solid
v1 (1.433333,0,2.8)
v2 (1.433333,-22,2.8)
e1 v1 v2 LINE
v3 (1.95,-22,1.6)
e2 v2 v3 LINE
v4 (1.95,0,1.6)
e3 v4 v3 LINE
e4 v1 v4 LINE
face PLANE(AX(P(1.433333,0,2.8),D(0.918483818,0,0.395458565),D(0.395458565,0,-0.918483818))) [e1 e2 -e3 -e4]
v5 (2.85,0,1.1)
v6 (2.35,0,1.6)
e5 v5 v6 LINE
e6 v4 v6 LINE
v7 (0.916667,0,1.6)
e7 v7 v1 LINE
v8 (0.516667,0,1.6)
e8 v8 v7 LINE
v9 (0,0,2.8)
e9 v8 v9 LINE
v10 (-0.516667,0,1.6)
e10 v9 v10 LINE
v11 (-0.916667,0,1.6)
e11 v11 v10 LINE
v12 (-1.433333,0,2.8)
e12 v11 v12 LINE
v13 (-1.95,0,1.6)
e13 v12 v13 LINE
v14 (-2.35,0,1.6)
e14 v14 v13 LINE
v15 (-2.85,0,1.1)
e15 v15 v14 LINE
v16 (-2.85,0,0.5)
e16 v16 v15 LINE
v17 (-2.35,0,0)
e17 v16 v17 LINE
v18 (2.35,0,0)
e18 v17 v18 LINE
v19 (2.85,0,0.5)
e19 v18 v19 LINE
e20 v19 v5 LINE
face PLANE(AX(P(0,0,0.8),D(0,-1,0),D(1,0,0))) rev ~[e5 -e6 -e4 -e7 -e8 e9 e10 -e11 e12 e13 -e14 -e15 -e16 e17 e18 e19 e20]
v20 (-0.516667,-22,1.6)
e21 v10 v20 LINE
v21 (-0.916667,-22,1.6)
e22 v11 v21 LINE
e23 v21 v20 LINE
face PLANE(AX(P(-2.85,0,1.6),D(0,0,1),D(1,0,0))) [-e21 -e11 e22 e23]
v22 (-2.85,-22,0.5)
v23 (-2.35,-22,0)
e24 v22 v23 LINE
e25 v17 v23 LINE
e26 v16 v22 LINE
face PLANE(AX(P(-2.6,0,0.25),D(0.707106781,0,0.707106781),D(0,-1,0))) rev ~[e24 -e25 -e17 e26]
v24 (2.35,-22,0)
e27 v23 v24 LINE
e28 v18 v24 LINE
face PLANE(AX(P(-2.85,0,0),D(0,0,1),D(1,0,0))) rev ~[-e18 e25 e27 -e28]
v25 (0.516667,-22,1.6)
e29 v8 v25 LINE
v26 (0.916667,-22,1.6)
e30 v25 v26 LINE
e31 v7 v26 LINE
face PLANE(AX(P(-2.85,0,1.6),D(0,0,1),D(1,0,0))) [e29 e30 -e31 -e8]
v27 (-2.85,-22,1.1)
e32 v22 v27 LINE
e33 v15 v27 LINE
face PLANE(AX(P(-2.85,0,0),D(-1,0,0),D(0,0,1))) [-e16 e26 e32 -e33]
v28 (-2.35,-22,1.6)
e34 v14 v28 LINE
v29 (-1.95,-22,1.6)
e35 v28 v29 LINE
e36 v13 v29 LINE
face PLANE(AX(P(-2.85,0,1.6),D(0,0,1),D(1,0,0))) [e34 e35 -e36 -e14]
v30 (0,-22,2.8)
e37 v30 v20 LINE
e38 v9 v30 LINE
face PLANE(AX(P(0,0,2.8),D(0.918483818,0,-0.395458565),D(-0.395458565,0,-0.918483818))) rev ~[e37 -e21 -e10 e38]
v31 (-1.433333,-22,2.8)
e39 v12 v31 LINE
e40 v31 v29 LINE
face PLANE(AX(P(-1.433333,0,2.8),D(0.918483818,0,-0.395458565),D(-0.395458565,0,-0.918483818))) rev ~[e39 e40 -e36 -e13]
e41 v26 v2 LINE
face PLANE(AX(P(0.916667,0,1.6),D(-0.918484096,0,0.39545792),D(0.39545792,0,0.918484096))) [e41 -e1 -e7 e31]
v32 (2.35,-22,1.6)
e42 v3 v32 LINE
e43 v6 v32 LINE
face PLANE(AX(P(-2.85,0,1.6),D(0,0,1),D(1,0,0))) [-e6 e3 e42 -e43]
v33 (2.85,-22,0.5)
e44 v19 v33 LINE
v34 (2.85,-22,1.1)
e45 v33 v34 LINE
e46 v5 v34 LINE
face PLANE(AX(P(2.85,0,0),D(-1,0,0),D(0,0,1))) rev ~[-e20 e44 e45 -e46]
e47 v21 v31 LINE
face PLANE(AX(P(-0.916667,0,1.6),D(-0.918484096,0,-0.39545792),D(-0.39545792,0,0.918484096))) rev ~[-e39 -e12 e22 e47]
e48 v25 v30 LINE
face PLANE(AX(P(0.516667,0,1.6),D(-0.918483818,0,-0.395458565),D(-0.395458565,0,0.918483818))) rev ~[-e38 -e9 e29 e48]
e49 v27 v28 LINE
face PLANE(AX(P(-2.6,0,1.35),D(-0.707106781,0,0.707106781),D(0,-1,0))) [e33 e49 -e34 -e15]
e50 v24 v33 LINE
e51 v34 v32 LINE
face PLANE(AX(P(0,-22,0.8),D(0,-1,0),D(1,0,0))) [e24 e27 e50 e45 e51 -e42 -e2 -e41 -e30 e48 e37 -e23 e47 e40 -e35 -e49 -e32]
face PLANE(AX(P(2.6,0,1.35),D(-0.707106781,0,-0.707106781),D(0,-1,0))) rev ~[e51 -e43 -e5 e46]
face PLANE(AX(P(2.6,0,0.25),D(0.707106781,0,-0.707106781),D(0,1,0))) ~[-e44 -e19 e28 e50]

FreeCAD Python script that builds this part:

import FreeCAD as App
import Part
import Sketcher
Q = App.Units.Quantity


def edges_at(feature, points):
    """Names of the edges that pass closest to the given points."""
    edges = feature.Shape.Edges
    near = lambda p: min(range(len(edges)), key=lambda i: edges[i].distToShape(Part.Vertex(*p))[0])
    return sorted({f"Edge{near(p) + 1}" for p in points})

doc = App.newDocument("Part")
body = doc.addObject("PartDesign::Body", "Body")

sketch1 = body.newObject("Sketcher::SketchObject", "Sketch")
sketch1.AttachmentSupport = (doc.getObject("XZ_Plane"), [""])
sketch1.MapMode = "FlatFace"
sketch1.addGeometry([
    Part.LineSegment(App.Vector(-2.9, 1.6, 0), App.Vector(-2.9, 0, 0)),
    Part.LineSegment(App.Vector(-2.9, 0, 0), App.Vector(2.9, 0, 0)),
    Part.LineSegment(App.Vector(2.9, 0, 0), App.Vector(2.9, 1.6, 0)),
    Part.LineSegment(App.Vector(2.9, 1.6, 0), App.Vector(-2.9, 1.6, 0)),
], False)
sketch1.addConstraint([
    Sketcher.Constraint("Coincident", 0, 2, 1, 1),
    Sketcher.Constraint("Coincident", 1, 2, 2, 1),
    Sketcher.Constraint("Coincident", 2, 2, 3, 1),
    Sketcher.Constraint("Coincident", 3, 2, 0, 1),
    Sketcher.Constraint("Vertical", 0),
    Sketcher.Constraint("Horizontal", 1),
    Sketcher.Constraint("Vertical", 2),
    Sketcher.Constraint("Horizontal", 3),
    Sketcher.Constraint("Symmetric", 0, 2, 1, 2, -1, 1),
    Sketcher.Constraint("DistanceX", 1, 1, 1, 2, Q("5.7 mm")),
    Sketcher.Constraint("DistanceY", 0, 2, 0, 1, Q("1.6 mm")),
])
pad1 = body.newObject("PartDesign::Pad", "Pad")
pad1.Profile = sketch1
pad1.Length = 22

sketch2 = body.newObject("Sketcher::SketchObject", "Sketch001")
sketch2.AttachmentSupport = (doc.getObject("XZ_Plane"), [""])
sketch2.MapMode = "FlatFace"
sketch2.addGeometry([
    Part.LineSegment(App.Vector(0.5, 1.6, 0), App.Vector(0, 2.8, 0)),
    Part.LineSegment(App.Vector(0, 2.8, 0), App.Vector(-0.5, 1.6, 0)),
    Part.LineSegment(App.Vector(-0.5, 1.6, 0), App.Vector(0.5, 1.6, 0)),
    Part.LineSegment(App.Vector(-0.9, 1.6, 0), App.Vector(-1.4, 2.8, 0)),
    Part.LineSegment(App.Vector(-1.4, 2.8, 0), App.Vector(-1.9, 1.6, 0)),
    Part.LineSegment(App.Vector(-1.9, 1.6, 0), App.Vector(-0.9, 1.6, 0)),
    Part.LineSegment(App.Vector(1.4, 2.8, 0), App.Vector(0.9, 1.6, 0)),
    Part.LineSegment(App.Vector(0.9, 1.6, 0), App.Vector(1.9, 1.6, 0)),
    Part.LineSegment(App.Vector(1.9, 1.6, 0), App.Vector(1.4, 2.8, 0)),
], False)
sketch2.addConstraint([
    Sketcher.Constraint("Coincident", 0, 2, 1, 1),
    Sketcher.Constraint("Coincident", 1, 2, 2, 1),
    Sketcher.Constraint("Coincident", 2, 2, 0, 1),
    Sketcher.Constraint("Coincident", 3, 2, 4, 1),
    Sketcher.Constraint("Coincident", 4, 2, 5, 1),
    Sketcher.Constraint("Coincident", 5, 2, 3, 1),
    Sketcher.Constraint("Coincident", 6, 2, 7, 1),
    Sketcher.Constraint("Coincident", 7, 2, 8, 1),
    Sketcher.Constraint("Coincident", 8, 2, 6, 1),
    Sketcher.Constraint("Horizontal", 2),
    Sketcher.Constraint("Horizontal", 5),
    Sketcher.Constraint("Horizontal", 7),
    Sketcher.Constraint("Symmetric", 5, 2, 6, 2, -2),
    Sketcher.Constraint("Symmetric", 3, 2, 8, 2, -2),
    Sketcher.Constraint("PointOnObject", 0, 2, -2),
    Sketcher.Constraint("Parallel", 0, 3),
    Sketcher.Constraint("Parallel", 1, 4),
    Sketcher.Constraint("Parallel", 4, 6),
    Sketcher.Constraint("Parallel", 3, 8),
    Sketcher.Constraint("Horizontal", 0, 2, 3, 2),
    Sketcher.Constraint("Horizontal", 2, 2, 4, 2),
    Sketcher.Constraint("DistanceY", -1, 1, 0, 2, Q("2.8 mm")),
    Sketcher.Constraint("DistanceY", -1, 1, 1, 2, Q("1.6 mm")),
    Sketcher.Constraint("DistanceX", 5, 2, 1, 2, Q("0.4 mm")),
    Sketcher.Constraint("DistanceX", 4, 2, -1, 1, Q("1.95 mm")),
])
pad2 = body.newObject("PartDesign::Pad", "Pad001")
pad2.Profile = sketch2
pad2.Length = 22
doc.recompute()

chamfer = body.newObject("PartDesign::Chamfer", "Chamfer")
chamfer.Base = (pad2, edges_at(pad2, [
    (-2.85, -11, 1.6),
    (-2.85, -11, 0),
    (2.85, -11, 0),
    (2.85, -11, 1.6),
]))
chamfer.Size = 0.5

doc.recompute()
